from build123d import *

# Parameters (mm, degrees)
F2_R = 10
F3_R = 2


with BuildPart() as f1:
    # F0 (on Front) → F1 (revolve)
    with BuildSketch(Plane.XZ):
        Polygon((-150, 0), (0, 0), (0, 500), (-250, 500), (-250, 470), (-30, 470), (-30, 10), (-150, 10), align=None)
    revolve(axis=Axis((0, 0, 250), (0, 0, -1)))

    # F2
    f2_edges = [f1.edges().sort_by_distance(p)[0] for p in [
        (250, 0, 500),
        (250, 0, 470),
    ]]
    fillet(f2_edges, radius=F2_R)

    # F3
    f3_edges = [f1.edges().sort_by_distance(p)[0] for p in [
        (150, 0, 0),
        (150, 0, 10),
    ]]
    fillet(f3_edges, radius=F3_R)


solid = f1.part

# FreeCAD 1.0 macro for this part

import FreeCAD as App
import Part
import Sketcher
from FreeCAD import Vector


def edges_at(feature, points):
    """Names of the edges that pass closest to the given points."""
    edges = feature.Shape.Edges
    near = lambda p: min(range(len(edges)), key=lambda i: edges[i].distToShape(Part.Vertex(*p))[0])
    return sorted({f"Edge{near(p) + 1}" for p in points})


def add_polygon(sketch, points):
    """Adds a closed chain of lines whose ends are joined by coincident constraints."""
    first, n = sketch.GeometryCount, len(points)
    for a, b in zip(points, points[1:] + points[:1]):
        sketch.addGeometry(Part.LineSegment(App.Vector(*a, 0), App.Vector(*b, 0)), False)
    for i in range(n):
        sketch.addConstraint(Sketcher.Constraint("Coincident", first + i, 2, first + (i + 1) % n, 1))

doc = App.newDocument("Part")
body = doc.addObject("PartDesign::Body", "Body")

# Sketch on XZ plane
sketch1 = body.newObject("Sketcher::SketchObject", "Sketch")
sketch1.AttachmentSupport = (doc.getObject("XZ_Plane"), [""])
sketch1.MapMode = "FlatFace"
add_polygon(sketch1, [(-150, 0), (0, 0), (0, 500), (-250, 500), (-250, 470), (-30, 470), (-30, 10), (-150, 10)])  # lines 0-7
sketch1.addConstraint(Sketcher.Constraint("Horizontal", 0))
sketch1.addConstraint(Sketcher.Constraint("Vertical", 1))
sketch1.addConstraint(Sketcher.Constraint("Horizontal", 2))
sketch1.addConstraint(Sketcher.Constraint("Vertical", 3))
sketch1.addConstraint(Sketcher.Constraint("Horizontal", 4))
sketch1.addConstraint(Sketcher.Constraint("Vertical", 5))
sketch1.addConstraint(Sketcher.Constraint("Horizontal", 6))
sketch1.addConstraint(Sketcher.Constraint("Vertical", 7))
sketch1.addConstraint(Sketcher.Constraint("Coincident", 0, 2, -1, 1))
sketch1.addConstraint(Sketcher.Constraint("DistanceX", 0, 1, 0, 2, 150.0))
sketch1.addConstraint(Sketcher.Constraint("DistanceX", 2, 2, 2, 1, 250.0))
sketch1.addConstraint(Sketcher.Constraint("DistanceX", 4, 1, 4, 2, 220.0))
sketch1.addConstraint(Sketcher.Constraint("DistanceY", 1, 1, 1, 2, 500.0))
sketch1.addConstraint(Sketcher.Constraint("DistanceY", 3, 2, 3, 1, 30.0))
sketch1.addConstraint(Sketcher.Constraint("DistanceY", 5, 2, 5, 1, 460.0))
revolution = body.newObject("PartDesign::Revolution", "Revolution")
revolution.Profile = sketch1
revolution.ReferenceAxis = (sketch1, ["V_Axis"])
revolution.Angle = 360
doc.recompute()

fillet = body.newObject("PartDesign::Fillet", "Fillet")
fillet.Base = (revolution, edges_at(revolution, [(250, 0, 500), (250, 0, 470)]))
fillet.Radius = 10
doc.recompute()

fillet2 = body.newObject("PartDesign::Fillet", "Fillet001")
fillet2.Base = (fillet, edges_at(fillet, [(150, 0, 0), (150, 0, 10)]))
fillet2.Radius = 2

doc.recompute()
